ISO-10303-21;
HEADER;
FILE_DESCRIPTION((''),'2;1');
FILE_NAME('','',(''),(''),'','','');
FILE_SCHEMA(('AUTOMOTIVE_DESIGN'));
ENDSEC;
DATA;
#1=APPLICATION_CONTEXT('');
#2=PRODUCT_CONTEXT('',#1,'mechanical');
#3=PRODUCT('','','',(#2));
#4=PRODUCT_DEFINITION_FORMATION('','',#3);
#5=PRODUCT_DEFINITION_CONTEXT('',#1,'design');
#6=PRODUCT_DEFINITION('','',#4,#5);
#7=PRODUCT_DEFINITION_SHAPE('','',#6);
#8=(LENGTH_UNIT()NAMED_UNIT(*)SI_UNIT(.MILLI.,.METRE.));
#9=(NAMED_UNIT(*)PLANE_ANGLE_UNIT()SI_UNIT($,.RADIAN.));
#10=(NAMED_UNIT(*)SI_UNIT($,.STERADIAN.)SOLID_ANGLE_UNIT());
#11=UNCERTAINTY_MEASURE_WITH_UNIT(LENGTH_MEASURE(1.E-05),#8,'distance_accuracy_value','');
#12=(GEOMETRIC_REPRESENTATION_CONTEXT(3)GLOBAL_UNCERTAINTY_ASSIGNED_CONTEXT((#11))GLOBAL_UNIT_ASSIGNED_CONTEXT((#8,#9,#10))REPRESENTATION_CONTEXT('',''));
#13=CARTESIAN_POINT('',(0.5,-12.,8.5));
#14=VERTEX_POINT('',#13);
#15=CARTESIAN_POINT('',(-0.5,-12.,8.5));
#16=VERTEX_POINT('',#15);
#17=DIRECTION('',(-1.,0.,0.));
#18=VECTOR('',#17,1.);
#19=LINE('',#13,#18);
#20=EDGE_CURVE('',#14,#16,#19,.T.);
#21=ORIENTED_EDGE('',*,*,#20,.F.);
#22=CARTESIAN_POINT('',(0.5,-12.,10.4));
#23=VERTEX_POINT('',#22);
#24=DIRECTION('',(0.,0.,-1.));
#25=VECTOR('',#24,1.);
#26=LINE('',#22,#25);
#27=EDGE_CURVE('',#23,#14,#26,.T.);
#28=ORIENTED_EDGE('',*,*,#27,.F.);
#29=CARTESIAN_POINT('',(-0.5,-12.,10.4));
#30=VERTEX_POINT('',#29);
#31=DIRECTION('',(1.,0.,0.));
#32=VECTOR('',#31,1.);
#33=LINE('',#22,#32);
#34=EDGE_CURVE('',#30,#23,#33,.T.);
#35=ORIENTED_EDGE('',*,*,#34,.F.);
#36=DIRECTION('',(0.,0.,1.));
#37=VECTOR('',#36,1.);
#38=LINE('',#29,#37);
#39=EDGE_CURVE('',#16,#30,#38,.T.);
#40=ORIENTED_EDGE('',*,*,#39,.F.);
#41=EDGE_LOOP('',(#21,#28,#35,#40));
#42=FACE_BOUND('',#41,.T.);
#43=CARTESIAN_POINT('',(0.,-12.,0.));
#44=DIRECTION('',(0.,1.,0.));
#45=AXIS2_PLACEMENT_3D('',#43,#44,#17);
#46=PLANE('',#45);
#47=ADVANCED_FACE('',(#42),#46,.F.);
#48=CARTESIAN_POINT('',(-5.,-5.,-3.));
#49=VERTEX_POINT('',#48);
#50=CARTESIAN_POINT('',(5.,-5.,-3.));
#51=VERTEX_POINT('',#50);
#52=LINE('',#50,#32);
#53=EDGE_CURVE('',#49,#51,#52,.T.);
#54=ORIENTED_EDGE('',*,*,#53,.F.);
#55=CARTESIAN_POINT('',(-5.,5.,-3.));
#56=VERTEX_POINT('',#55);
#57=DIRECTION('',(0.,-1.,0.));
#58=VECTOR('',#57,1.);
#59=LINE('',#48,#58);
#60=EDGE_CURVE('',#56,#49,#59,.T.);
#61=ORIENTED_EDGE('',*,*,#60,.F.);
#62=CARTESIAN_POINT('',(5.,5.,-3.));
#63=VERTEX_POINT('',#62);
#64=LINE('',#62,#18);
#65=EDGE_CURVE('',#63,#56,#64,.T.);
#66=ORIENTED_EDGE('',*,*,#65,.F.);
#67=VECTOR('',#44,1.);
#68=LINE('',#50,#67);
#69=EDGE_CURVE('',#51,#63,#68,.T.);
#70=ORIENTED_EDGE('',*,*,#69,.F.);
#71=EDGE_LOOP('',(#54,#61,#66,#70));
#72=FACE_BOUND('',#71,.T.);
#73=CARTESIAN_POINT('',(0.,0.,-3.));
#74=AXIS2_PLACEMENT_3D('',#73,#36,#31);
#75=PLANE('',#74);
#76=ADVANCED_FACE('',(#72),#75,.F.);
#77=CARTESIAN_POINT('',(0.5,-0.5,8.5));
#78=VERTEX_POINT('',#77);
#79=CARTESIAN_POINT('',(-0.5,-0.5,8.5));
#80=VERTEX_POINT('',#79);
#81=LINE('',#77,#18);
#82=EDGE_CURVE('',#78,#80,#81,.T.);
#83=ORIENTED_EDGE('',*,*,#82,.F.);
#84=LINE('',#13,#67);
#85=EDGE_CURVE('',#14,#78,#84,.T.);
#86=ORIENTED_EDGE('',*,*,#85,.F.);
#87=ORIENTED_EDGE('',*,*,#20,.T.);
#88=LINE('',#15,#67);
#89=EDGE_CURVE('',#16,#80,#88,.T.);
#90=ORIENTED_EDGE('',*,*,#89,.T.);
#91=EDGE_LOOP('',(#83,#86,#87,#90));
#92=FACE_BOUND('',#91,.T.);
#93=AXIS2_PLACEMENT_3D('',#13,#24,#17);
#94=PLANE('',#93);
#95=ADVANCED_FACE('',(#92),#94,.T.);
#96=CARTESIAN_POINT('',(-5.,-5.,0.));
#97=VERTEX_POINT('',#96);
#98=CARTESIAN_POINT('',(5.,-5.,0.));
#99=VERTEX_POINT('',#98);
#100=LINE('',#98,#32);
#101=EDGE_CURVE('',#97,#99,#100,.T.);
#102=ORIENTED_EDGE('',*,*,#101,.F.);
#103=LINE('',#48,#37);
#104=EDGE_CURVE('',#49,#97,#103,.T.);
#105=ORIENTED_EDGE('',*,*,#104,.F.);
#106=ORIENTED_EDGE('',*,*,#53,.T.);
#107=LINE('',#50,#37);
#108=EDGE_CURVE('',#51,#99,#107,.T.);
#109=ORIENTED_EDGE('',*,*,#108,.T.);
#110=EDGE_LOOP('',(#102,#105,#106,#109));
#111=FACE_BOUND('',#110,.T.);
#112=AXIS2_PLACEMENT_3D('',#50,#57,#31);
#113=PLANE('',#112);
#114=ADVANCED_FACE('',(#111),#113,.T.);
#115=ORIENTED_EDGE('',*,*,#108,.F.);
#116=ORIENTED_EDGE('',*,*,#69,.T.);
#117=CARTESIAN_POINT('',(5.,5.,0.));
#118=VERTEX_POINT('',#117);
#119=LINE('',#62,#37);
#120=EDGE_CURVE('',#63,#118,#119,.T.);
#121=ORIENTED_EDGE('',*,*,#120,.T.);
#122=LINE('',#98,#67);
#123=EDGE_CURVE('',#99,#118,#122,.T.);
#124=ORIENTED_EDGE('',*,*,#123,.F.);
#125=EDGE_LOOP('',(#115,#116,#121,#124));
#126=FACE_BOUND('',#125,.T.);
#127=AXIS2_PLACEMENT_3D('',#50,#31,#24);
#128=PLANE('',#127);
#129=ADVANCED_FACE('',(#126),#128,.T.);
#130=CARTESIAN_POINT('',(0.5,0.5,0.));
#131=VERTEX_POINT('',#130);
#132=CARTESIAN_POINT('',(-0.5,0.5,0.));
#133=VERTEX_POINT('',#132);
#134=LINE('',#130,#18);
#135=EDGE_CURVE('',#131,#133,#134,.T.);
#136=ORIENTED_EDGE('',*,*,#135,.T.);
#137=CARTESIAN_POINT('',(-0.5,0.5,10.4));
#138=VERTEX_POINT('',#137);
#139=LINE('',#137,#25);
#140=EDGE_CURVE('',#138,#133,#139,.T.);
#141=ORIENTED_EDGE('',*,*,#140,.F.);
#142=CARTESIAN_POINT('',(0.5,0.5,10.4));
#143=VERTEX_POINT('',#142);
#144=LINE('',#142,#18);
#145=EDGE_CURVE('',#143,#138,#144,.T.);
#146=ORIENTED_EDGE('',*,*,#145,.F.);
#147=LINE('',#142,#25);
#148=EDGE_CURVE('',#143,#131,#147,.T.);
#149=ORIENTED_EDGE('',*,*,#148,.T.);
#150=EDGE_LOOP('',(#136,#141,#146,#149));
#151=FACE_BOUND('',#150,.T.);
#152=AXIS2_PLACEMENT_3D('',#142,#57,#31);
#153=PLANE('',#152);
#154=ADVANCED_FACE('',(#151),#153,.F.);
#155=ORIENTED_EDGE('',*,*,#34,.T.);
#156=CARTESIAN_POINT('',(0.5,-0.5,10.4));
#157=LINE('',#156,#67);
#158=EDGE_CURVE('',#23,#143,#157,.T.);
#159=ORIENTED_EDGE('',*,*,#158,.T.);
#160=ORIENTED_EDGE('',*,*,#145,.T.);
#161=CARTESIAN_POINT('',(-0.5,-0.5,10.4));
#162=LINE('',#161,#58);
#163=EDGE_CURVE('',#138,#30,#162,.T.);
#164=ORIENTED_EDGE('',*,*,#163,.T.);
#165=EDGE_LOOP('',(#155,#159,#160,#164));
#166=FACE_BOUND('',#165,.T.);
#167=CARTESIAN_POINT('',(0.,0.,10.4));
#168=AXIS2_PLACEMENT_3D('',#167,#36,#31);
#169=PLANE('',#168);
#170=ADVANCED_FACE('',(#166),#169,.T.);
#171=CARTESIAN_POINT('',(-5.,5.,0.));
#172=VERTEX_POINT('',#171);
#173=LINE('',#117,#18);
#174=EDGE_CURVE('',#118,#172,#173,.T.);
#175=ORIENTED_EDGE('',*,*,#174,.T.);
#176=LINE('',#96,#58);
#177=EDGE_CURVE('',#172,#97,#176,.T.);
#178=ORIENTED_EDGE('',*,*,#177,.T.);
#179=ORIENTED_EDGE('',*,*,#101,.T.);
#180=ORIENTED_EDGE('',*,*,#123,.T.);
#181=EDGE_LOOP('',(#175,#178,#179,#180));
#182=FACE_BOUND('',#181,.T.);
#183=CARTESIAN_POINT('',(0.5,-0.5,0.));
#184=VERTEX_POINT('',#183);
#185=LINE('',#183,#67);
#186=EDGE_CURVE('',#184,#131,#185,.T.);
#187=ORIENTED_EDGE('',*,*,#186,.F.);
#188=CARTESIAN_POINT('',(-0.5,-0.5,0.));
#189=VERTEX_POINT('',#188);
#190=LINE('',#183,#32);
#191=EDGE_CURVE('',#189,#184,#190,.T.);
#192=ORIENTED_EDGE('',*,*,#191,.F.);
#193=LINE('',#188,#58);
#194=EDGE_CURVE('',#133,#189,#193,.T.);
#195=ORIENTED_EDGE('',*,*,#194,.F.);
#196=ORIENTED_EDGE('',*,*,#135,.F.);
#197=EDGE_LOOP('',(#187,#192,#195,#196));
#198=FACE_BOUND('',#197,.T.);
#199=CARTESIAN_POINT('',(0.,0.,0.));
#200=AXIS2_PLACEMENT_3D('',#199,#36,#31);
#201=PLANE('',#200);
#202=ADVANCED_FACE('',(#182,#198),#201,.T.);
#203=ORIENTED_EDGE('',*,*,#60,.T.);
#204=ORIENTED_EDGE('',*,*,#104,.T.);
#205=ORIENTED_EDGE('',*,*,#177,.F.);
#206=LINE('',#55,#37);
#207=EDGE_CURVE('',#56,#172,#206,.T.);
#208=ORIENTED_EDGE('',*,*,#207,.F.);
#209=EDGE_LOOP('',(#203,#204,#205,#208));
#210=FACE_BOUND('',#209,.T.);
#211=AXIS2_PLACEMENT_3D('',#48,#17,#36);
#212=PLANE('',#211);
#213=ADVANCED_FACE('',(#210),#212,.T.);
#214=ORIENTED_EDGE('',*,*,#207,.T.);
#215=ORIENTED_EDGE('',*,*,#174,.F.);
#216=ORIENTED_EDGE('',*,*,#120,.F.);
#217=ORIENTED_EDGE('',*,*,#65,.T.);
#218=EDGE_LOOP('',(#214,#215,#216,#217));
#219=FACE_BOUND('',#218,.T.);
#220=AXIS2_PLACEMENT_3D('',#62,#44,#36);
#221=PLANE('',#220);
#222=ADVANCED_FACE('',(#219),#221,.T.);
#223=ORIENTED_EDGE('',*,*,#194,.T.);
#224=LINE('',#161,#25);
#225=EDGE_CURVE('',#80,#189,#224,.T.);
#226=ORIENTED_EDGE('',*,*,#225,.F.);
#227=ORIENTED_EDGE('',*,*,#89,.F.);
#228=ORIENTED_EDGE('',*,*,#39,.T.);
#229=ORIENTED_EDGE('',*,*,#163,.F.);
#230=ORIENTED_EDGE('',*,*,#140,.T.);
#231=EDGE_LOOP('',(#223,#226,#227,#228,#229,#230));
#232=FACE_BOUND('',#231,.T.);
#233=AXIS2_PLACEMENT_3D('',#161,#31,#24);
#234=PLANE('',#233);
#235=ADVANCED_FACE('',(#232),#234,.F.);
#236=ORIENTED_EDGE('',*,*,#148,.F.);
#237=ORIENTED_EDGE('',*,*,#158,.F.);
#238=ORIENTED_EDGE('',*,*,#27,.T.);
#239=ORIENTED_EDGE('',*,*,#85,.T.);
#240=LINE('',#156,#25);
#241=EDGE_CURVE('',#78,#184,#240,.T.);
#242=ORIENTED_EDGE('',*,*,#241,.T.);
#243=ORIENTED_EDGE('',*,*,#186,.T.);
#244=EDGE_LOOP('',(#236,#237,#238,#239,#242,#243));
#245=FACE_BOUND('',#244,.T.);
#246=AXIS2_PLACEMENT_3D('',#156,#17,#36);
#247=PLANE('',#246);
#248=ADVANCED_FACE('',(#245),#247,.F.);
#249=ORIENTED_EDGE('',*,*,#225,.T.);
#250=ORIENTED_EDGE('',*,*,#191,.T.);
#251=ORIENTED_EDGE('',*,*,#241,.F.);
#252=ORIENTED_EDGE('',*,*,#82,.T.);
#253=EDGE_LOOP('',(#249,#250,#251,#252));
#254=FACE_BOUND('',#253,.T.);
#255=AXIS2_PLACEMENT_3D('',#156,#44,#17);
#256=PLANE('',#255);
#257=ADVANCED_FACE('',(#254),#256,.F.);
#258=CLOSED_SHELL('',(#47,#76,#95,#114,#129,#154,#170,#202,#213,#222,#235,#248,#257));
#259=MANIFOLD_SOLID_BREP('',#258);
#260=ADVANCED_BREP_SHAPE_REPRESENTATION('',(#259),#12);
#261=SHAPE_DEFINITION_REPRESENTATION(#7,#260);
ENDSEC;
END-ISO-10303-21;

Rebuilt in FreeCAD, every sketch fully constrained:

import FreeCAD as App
import Part
import Sketcher

V = App.Vector
Q = App.Units.Quantity

doc = App.newDocument("Part")
body = doc.addObject("PartDesign::Body", "Body")

sketch1 = body.newObject("Sketcher::SketchObject", "Sketch")
sketch1.AttachmentSupport = (doc.getObject("XY_Plane"), [""])
sketch1.MapMode = "FlatFace"
sketch1.addGeometry(Part.LineSegment(V(-5, 5, 0), V(-5, -5, 0)), False)
sketch1.addGeometry(Part.LineSegment(V(-5, -5, 0), V(5, -5, 0)), False)
sketch1.addGeometry(Part.LineSegment(V(5, -5, 0), V(5, 5, 0)), False)
sketch1.addGeometry(Part.LineSegment(V(5, 5, 0), V(-5, 5, 0)), False)
sketch1.addConstraint(Sketcher.Constraint("Coincident", 0, 2, 1, 1))
sketch1.addConstraint(Sketcher.Constraint("Coincident", 1, 2, 2, 1))
sketch1.addConstraint(Sketcher.Constraint("Coincident", 2, 2, 3, 1))
sketch1.addConstraint(Sketcher.Constraint("Coincident", 3, 2, 0, 1))
sketch1.addConstraint(Sketcher.Constraint("Vertical", 0))
sketch1.addConstraint(Sketcher.Constraint("Horizontal", 1))
sketch1.addConstraint(Sketcher.Constraint("Vertical", 2))
sketch1.addConstraint(Sketcher.Constraint("Horizontal", 3))
sketch1.addConstraint(Sketcher.Constraint("Symmetric", 0, 2, 2, 2, -1, 1))
sketch1.addConstraint(Sketcher.Constraint("Equal", 3, 0))
sketch1.addConstraint(Sketcher.Constraint("DistanceX", 1, 1, 1, 2, Q("10 mm")))
pad1 = body.newObject("PartDesign::Pad", "Pad")
pad1.Profile = sketch1
pad1.Length = 3
pad1.Reversed = True

sketch2 = body.newObject("Sketcher::SketchObject", "Sketch001")
sketch2.AttachmentSupport = (doc.getObject("XY_Plane"), [""])
sketch2.MapMode = "FlatFace"
sketch2.addGeometry(Part.LineSegment(V(-0.5, 0.5, 0), V(-0.5, -0.5, 0)), False)
sketch2.addGeometry(Part.LineSegment(V(-0.5, -0.5, 0), V(0.5, -0.5, 0)), False)
sketch2.addGeometry(Part.LineSegment(V(0.5, -0.5, 0), V(0.5, 0.5, 0)), False)
sketch2.addGeometry(Part.LineSegment(V(0.5, 0.5, 0), V(-0.5, 0.5, 0)), False)
sketch2.addConstraint(Sketcher.Constraint("Coincident", 0, 2, 1, 1))
sketch2.addConstraint(Sketcher.Constraint("Coincident", 1, 2, 2, 1))
sketch2.addConstraint(Sketcher.Constraint("Coincident", 2, 2, 3, 1))
sketch2.addConstraint(Sketcher.Constraint("Coincident", 3, 2, 0, 1))
sketch2.addConstraint(Sketcher.Constraint("Vertical", 0))
sketch2.addConstraint(Sketcher.Constraint("Horizontal", 1))
sketch2.addConstraint(Sketcher.Constraint("Vertical", 2))
sketch2.addConstraint(Sketcher.Constraint("Horizontal", 3))
sketch2.addConstraint(Sketcher.Constraint("Symmetric", 0, 2, 2, 2, -1, 1))
sketch2.addConstraint(Sketcher.Constraint("Equal", 3, 0))
sketch2.addConstraint(Sketcher.Constraint("DistanceX", 1, 1, 1, 2, Q("1 mm")))
pad2 = body.newObject("PartDesign::Pad", "Pad001")
pad2.Profile = sketch2
pad2.Length = 10.4

sketch3 = body.newObject("Sketcher::SketchObject", "Sketch002")
sketch3.AttachmentSupport = (doc.getObject("XZ_Plane"), [""])
sketch3.MapMode = "FlatFace"
sketch3.AttachmentOffset = App.Placement(V(0, 0, -0.5), App.Rotation())
sketch3.addGeometry(Part.LineSegment(V(-0.5, 8.5, 0), V(-0.5, 10.4, 0)), False)
sketch3.addGeometry(Part.LineSegment(V(-0.5, 10.4, 0), V(0.5, 10.4, 0)), False)
sketch3.addGeometry(Part.LineSegment(V(0.5, 10.4, 0), V(0.5, 8.5, 0)), False)
sketch3.addGeometry(Part.LineSegment(V(0.5, 8.5, 0), V(-0.5, 8.5, 0)), False)
sketch3.addConstraint(Sketcher.Constraint("Coincident", 0, 2, 1, 1))
sketch3.addConstraint(Sketcher.Constraint("Coincident", 1, 2, 2, 1))
sketch3.addConstraint(Sketcher.Constraint("Coincident", 2, 2, 3, 1))
sketch3.addConstraint(Sketcher.Constraint("Coincident", 3, 2, 0, 1))
sketch3.addConstraint(Sketcher.Constraint("Vertical", 0))
sketch3.addConstraint(Sketcher.Constraint("Horizontal", 1))
sketch3.addConstraint(Sketcher.Constraint("Vertical", 2))
sketch3.addConstraint(Sketcher.Constraint("Horizontal", 3))
sketch3.addConstraint(Sketcher.Constraint("DistanceX", 1, 1, 1, 2, Q("1 mm")))
sketch3.addConstraint(Sketcher.Constraint("DistanceY", 0, 1, 0, 2, Q("1.9 mm")))
sketch3.addConstraint(Sketcher.Constraint("DistanceX", 0, 2, -1, 1, Q("0.5 mm")))
sketch3.addConstraint(Sketcher.Constraint("DistanceY", -1, 1, 0, 2, Q("10.4 mm")))
pad3 = body.newObject("PartDesign::Pad", "Pad002")
pad3.Profile = sketch3
pad3.Length = 12.5

doc.recompute()
